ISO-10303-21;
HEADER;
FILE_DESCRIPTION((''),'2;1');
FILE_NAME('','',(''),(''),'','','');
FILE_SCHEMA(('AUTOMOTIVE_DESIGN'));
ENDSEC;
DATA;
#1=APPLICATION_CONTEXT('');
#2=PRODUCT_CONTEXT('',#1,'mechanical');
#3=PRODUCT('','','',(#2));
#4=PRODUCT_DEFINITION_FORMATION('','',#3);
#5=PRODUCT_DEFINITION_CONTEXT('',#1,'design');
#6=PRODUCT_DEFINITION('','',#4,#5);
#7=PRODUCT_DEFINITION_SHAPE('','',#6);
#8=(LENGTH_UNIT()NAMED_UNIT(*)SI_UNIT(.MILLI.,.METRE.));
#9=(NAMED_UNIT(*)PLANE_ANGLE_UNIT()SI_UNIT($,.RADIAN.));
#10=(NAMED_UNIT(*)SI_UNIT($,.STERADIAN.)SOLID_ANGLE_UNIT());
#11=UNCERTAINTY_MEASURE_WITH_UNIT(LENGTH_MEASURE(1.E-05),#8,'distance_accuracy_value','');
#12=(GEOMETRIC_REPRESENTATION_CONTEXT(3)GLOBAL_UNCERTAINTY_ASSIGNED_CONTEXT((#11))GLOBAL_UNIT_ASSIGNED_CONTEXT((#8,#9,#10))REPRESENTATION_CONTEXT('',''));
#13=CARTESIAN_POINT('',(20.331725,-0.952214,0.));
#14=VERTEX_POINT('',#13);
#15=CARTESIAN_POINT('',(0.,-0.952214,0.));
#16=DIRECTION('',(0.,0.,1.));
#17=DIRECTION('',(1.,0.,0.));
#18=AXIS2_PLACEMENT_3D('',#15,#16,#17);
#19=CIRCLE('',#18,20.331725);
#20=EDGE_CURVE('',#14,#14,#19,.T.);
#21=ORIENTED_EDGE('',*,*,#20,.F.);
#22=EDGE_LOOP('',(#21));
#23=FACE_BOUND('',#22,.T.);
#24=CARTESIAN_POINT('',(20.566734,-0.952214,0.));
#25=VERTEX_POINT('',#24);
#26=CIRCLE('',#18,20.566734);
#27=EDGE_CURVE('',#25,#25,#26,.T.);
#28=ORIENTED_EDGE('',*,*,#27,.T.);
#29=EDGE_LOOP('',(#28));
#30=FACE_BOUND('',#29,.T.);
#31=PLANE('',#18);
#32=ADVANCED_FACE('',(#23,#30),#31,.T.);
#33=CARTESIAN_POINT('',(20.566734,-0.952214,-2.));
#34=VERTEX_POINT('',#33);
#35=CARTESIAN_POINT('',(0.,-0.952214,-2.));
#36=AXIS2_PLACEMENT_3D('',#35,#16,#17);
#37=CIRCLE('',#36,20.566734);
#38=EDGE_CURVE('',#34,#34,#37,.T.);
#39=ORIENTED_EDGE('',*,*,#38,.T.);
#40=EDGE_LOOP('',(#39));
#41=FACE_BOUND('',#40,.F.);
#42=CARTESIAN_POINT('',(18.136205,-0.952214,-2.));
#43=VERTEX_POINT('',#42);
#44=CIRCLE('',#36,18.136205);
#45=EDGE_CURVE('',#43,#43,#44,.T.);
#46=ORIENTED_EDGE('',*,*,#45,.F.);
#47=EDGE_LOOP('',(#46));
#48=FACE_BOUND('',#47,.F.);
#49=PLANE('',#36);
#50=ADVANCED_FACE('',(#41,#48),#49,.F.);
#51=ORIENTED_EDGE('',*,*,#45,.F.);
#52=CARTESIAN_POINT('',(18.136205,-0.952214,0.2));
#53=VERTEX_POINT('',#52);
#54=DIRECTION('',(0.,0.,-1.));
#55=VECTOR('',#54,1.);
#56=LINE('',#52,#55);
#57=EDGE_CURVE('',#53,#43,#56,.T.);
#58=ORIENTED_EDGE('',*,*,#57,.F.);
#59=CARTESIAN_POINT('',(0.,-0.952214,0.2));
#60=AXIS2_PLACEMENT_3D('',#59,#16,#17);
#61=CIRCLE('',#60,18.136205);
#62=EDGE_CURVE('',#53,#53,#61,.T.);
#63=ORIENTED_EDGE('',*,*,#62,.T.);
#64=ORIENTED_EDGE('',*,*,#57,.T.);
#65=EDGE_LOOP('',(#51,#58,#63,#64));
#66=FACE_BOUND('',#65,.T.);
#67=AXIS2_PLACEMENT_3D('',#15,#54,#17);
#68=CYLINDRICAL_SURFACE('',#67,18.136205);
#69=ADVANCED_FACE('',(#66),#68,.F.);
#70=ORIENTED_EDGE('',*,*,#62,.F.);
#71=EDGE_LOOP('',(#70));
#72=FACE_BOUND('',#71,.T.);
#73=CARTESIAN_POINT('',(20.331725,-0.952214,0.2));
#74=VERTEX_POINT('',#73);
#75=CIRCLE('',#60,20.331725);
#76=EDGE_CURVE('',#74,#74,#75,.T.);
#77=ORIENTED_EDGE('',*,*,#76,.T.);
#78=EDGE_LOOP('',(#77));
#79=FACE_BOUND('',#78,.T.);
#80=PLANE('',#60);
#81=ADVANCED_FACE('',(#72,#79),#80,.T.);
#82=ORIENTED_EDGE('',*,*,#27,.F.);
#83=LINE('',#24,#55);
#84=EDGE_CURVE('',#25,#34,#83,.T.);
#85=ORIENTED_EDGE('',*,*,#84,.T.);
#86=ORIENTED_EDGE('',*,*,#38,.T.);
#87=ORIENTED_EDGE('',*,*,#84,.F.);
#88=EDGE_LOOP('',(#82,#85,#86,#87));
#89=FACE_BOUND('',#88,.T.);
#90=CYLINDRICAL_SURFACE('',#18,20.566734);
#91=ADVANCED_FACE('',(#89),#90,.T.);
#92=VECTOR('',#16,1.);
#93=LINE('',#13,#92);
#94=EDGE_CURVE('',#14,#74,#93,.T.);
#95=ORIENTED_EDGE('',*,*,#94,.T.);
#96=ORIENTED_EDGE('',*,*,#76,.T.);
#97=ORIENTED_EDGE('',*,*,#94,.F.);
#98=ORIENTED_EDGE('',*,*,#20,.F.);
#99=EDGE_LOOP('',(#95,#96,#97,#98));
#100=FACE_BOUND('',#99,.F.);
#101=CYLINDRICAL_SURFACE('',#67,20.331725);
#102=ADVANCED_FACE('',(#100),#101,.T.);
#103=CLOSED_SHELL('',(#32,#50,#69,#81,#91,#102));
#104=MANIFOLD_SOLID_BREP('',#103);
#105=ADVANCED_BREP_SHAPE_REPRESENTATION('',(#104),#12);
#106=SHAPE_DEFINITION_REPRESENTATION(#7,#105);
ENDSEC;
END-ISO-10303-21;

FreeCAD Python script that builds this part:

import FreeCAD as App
import Part
import Sketcher

V = App.Vector

doc = App.newDocument("Part")
body = doc.addObject("PartDesign::Body", "Body")

# Sketch on XY plane
sketch1 = doc.addObject("Sketcher::SketchObject", "Sketch")
body.addObject(sketch1)
sketch1.AttachmentSupport = (doc.XY_Plane, [""])
sketch1.MapMode = "FlatFace"
sketch1.addGeometry([
    Part.Circle(V(0, -1, 0), V(0, 0, 1), 21),
    Part.Circle(V(0, -1, 0), V(0, 0, 1), 18),
], False)
sketch1.addConstraint([
    Sketcher.Constraint("Coincident", 1, 3, 0, 3),
    Sketcher.Constraint("PointOnObject", 0, 3, -2),
    Sketcher.Constraint("Diameter", 1, 36.27241),
    Sketcher.Constraint("Diameter", 0, 41.133468),
    Sketcher.Constraint("DistanceY", 0, 3, -1, 1, 0.952214),
])
pad1 = doc.addObject("PartDesign::Pad", "Pad")
body.addObject(pad1)
pad1.Profile = sketch1
pad1.Length = 2
pad1.Reversed = True

# Sketch on XY plane
sketch2 = doc.addObject("Sketcher::SketchObject", "Sketch001")
body.addObject(sketch2)
sketch2.AttachmentSupport = (doc.XY_Plane, [""])
sketch2.MapMode = "FlatFace"
sketch2.addGeometry([
    Part.Circle(V(0, -1, 0), V(0, 0, 1), 20),
    Part.Circle(V(0, -1, 0), V(0, 0, 1), 18),
], False)
sketch2.addConstraint([
    Sketcher.Constraint("Coincident", 1, 3, 0, 3),
    Sketcher.Constraint("PointOnObject", 0, 3, -2),
    Sketcher.Constraint("Diameter", 0, 40.66345),
    Sketcher.Constraint("Diameter", 1, 36.27241),
    Sketcher.Constraint("DistanceY", 0, 3, -1, 1, 0.952214),
])
pad2 = doc.addObject("PartDesign::Pad", "Pad001")
body.addObject(pad2)
pad2.Profile = sketch2
pad2.Length = 0.2

doc.recompute()
